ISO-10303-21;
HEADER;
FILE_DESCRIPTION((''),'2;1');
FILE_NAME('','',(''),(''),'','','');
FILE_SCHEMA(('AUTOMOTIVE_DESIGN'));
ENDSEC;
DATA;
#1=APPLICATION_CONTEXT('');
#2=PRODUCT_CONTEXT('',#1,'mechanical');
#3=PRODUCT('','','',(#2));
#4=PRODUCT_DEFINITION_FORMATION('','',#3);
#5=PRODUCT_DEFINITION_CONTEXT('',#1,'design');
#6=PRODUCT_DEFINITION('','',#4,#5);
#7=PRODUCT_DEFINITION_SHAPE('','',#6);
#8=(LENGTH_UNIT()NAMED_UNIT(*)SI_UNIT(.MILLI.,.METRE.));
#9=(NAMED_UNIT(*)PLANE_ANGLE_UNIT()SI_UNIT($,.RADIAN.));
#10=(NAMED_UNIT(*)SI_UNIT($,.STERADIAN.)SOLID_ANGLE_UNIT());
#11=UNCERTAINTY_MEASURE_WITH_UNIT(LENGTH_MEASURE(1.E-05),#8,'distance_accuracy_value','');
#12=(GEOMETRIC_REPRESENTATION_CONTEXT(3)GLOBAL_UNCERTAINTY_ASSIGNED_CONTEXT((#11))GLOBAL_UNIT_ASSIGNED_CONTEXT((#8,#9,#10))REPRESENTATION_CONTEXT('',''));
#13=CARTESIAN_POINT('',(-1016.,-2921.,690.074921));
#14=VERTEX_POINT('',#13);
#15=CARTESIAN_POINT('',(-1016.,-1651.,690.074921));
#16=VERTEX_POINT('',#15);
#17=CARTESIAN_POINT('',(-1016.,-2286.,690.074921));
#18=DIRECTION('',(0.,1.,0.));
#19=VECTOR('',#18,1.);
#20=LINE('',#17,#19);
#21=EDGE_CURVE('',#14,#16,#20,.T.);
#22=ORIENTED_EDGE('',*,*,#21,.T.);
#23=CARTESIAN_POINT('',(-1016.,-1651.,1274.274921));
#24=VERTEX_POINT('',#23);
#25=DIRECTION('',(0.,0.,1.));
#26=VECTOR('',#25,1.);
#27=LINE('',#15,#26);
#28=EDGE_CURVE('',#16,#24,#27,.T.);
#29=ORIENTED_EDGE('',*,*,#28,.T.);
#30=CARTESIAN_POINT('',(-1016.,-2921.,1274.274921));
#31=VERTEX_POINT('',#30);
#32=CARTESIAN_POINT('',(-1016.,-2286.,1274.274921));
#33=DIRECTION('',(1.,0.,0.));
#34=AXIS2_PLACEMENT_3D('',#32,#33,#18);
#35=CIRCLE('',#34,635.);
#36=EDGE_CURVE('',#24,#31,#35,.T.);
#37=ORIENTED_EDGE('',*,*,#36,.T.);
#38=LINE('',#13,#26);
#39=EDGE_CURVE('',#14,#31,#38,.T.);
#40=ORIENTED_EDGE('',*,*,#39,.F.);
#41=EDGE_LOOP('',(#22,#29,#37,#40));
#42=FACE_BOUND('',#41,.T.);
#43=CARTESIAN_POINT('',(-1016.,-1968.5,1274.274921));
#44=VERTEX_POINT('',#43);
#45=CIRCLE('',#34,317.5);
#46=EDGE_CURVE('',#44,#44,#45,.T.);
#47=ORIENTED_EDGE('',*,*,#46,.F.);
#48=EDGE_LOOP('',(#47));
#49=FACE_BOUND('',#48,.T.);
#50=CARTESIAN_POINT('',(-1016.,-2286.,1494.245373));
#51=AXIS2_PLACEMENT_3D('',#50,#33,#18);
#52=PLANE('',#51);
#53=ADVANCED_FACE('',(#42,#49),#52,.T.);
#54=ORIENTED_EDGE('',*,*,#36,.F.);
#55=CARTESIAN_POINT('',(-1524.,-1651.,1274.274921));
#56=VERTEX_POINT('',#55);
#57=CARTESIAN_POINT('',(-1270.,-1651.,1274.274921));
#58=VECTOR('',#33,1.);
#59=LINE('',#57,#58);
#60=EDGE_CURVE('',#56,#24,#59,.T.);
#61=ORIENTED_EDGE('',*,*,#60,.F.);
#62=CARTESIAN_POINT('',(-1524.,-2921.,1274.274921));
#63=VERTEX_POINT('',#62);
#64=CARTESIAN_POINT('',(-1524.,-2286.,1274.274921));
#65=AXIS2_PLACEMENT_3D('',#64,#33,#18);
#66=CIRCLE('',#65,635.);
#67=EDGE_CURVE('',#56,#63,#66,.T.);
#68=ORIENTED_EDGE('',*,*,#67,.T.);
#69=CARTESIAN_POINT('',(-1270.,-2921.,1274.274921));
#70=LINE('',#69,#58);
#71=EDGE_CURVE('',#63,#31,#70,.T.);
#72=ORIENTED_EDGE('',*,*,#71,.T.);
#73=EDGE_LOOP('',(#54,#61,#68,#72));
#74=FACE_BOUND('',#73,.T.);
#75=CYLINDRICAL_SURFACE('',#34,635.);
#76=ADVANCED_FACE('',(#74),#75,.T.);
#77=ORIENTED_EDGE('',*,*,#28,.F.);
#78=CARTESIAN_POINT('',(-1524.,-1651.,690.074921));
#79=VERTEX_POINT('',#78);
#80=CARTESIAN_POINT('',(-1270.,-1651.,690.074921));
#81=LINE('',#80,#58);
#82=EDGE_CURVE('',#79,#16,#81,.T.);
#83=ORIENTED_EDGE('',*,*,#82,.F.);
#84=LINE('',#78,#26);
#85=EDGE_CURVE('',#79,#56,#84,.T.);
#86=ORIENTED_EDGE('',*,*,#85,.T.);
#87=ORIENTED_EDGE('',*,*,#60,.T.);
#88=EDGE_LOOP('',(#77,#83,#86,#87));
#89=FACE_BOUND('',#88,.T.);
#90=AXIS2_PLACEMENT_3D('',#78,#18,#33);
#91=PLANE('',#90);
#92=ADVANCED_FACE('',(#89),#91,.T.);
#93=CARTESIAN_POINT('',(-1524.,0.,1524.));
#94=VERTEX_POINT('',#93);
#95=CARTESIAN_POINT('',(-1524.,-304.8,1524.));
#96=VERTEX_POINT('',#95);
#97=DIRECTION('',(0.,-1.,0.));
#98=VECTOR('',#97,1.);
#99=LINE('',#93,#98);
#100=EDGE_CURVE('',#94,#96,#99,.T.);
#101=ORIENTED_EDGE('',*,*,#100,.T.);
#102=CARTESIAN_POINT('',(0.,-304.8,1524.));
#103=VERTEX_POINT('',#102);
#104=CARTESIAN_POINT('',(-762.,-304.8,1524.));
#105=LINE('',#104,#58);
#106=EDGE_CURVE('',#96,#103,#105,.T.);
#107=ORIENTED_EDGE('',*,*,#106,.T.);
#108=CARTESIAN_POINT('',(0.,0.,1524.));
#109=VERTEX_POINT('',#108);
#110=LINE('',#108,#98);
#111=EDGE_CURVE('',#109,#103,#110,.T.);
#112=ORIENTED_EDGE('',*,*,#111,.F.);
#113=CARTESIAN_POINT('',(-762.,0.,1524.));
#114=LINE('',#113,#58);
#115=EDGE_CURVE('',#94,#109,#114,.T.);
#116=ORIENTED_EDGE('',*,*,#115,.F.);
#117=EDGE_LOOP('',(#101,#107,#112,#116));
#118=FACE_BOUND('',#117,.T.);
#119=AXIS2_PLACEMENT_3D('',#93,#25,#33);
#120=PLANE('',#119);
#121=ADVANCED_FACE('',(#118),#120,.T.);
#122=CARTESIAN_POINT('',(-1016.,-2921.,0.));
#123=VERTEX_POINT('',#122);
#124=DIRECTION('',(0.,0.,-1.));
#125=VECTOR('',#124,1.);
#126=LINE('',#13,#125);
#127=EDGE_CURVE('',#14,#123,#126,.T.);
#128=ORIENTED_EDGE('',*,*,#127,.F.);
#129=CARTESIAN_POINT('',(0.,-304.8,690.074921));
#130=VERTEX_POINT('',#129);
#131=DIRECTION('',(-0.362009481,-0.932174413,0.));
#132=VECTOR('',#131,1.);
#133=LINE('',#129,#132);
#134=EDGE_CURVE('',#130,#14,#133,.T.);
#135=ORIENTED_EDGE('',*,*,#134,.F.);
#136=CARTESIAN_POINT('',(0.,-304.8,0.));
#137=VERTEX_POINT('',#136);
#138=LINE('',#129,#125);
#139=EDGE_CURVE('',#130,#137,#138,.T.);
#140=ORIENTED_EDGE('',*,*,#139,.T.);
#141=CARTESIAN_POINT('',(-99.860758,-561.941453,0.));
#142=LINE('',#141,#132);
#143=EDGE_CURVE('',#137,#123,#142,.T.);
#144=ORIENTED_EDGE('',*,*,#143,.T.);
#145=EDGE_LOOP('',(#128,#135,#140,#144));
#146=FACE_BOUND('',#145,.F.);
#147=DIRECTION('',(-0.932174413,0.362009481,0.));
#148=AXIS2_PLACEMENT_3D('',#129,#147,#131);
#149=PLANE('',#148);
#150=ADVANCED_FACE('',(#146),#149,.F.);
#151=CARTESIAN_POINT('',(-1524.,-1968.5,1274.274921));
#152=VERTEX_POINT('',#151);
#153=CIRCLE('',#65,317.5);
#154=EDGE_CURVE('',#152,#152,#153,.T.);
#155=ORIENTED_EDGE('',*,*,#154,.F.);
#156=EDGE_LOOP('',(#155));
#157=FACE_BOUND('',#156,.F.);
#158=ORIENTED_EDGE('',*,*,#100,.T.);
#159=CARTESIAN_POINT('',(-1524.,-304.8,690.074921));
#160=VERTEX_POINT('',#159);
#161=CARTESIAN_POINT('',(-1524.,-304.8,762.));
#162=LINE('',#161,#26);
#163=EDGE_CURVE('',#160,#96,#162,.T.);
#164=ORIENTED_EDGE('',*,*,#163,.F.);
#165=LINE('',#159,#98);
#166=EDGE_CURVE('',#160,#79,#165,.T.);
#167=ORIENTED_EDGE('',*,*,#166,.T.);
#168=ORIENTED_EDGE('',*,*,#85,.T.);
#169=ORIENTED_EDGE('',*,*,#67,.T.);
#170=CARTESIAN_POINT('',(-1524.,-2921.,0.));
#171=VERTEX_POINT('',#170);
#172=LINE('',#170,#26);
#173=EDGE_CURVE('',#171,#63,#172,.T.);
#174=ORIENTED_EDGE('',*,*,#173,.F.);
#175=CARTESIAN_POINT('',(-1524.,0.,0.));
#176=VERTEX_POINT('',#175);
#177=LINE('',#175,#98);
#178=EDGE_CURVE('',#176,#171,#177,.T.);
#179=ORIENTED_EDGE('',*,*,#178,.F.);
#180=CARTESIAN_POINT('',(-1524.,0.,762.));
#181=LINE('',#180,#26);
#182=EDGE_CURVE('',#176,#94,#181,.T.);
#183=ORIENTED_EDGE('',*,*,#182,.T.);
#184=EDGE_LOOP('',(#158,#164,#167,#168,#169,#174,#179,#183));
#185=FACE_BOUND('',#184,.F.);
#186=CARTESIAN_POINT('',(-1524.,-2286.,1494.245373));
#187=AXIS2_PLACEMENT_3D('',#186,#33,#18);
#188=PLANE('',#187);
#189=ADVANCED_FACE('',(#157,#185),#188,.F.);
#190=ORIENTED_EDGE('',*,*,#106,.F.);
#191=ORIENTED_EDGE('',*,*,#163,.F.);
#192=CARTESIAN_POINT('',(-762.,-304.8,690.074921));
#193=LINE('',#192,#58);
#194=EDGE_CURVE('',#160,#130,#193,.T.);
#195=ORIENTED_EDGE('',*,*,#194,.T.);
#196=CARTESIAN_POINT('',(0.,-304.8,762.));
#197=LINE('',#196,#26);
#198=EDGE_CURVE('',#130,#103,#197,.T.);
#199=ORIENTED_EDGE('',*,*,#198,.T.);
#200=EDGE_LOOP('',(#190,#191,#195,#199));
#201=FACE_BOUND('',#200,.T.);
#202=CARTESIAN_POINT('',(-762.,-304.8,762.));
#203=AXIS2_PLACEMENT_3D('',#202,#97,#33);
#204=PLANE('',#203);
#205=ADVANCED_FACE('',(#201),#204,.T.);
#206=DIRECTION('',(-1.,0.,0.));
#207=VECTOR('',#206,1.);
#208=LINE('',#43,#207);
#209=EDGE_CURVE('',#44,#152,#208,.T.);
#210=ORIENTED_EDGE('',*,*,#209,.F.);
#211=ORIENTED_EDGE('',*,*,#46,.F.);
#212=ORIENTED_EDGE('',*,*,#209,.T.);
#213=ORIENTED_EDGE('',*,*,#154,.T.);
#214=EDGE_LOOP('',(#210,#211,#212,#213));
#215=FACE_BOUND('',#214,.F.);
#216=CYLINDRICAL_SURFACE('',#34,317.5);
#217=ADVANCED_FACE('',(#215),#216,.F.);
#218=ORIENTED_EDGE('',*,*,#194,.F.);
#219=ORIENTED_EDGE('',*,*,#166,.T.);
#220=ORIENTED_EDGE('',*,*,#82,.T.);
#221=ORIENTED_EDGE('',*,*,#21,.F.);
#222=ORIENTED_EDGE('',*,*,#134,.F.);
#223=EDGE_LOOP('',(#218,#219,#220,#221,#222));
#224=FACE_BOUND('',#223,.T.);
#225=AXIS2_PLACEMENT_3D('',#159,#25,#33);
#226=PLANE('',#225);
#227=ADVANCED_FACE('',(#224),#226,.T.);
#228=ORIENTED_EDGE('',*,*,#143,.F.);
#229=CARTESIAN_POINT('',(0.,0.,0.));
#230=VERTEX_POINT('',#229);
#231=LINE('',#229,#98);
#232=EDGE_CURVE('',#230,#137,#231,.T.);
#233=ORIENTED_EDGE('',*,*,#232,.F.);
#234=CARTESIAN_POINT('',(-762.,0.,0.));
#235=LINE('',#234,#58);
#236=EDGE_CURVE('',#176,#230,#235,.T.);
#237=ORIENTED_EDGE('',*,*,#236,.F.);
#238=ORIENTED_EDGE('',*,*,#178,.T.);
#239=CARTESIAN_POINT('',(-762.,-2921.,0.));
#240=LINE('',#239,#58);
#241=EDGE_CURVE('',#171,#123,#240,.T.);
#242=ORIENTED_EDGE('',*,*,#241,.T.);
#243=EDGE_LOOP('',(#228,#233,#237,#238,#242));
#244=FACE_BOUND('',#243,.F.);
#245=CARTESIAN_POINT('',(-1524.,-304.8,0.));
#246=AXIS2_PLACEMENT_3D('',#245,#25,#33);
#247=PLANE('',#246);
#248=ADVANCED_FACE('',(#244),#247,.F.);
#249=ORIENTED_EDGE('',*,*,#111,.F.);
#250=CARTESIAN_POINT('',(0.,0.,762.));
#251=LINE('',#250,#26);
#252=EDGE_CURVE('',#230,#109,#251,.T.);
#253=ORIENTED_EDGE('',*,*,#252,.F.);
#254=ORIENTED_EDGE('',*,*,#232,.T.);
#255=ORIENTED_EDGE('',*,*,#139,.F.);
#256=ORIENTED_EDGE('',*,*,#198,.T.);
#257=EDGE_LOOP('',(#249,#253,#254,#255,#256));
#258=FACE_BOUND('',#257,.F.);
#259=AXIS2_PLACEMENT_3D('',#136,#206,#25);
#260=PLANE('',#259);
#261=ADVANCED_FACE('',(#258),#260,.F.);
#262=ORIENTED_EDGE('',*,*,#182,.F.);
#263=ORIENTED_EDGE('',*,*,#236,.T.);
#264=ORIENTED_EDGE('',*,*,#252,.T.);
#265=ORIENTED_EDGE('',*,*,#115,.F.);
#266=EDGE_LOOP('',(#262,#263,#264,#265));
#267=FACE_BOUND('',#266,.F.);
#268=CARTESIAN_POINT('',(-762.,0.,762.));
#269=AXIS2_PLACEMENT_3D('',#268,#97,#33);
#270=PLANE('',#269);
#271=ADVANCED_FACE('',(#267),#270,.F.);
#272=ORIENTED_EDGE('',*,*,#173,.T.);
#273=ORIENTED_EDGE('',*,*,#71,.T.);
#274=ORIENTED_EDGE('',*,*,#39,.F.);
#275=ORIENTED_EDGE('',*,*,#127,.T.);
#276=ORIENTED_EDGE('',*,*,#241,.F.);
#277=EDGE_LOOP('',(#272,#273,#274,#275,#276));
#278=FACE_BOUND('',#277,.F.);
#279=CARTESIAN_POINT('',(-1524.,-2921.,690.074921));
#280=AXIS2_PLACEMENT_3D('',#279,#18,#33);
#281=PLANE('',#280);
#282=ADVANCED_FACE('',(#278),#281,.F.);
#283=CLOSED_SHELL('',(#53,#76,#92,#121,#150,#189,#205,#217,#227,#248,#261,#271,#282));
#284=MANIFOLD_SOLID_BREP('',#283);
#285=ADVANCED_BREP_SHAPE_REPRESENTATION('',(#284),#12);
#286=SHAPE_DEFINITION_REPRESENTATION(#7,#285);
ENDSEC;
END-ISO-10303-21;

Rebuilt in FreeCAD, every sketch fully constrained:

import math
import FreeCAD as App
import Part
import Sketcher
Q = App.Units.Quantity

doc = App.newDocument("Part")
body = doc.addObject("PartDesign::Body", "Body")

sketch1 = doc.addObject("Sketcher::SketchObject", "Sketch")
body.addObject(sketch1)
sketch1.AttachmentSupport = (doc.XZ_Plane, [""])
sketch1.MapMode = "FlatFace"
sketch1.addGeometry([
    Part.LineSegment(App.Vector(-1524, 1524, 0), App.Vector(-1524, 0, 0)),
    Part.LineSegment(App.Vector(-1524, 0, 0), App.Vector(0, 0, 0)),
    Part.LineSegment(App.Vector(0, 0, 0), App.Vector(0, 1524, 0)),
    Part.LineSegment(App.Vector(0, 1524, 0), App.Vector(-1524, 1524, 0)),
], False)
sketch1.addConstraint([
    Sketcher.Constraint("Coincident", 0, 2, 1, 1),
    Sketcher.Constraint("Coincident", 1, 2, 2, 1),
    Sketcher.Constraint("Coincident", 2, 2, 3, 1),
    Sketcher.Constraint("Coincident", 3, 2, 0, 1),
    Sketcher.Constraint("Vertical", 0),
    Sketcher.Constraint("Horizontal", 1),
    Sketcher.Constraint("Vertical", 2),
    Sketcher.Constraint("Horizontal", 3),
    Sketcher.Constraint("Coincident", 1, 2, -1, 1),
    Sketcher.Constraint("Equal", 3, 0),
    Sketcher.Constraint("DistanceX", 1, 1, 1, 2, Q("60 in")),
])
pad1 = doc.addObject("PartDesign::Pad", "Pad")
body.addObject(pad1)
pad1.Profile = sketch1
pad1.Length = Q("12 in")

sketch2 = doc.addObject("Sketcher::SketchObject", "Sketch001")
body.addObject(sketch2)
sketch2.AttachmentSupport = (doc.XZ_Plane, [""])
sketch2.MapMode = "FlatFace"
sketch2.AttachmentOffset = App.Placement(App.Vector(0, 0, 12 * 25.4), App.Rotation())
sketch2.addGeometry([
    Part.LineSegment(App.Vector(-1524, 690, 0), App.Vector(-1524, 0, 0)),
    Part.LineSegment(App.Vector(-1524, 0, 0), App.Vector(0, 0, 0)),
    Part.LineSegment(App.Vector(0, 0, 0), App.Vector(0, 690, 0)),
    Part.LineSegment(App.Vector(0, 690, 0), App.Vector(-1524, 690, 0)),
], False)
sketch2.addConstraint([
    Sketcher.Constraint("Coincident", 0, 2, 1, 1),
    Sketcher.Constraint("Coincident", 1, 2, 2, 1),
    Sketcher.Constraint("Coincident", 2, 2, 3, 1),
    Sketcher.Constraint("Coincident", 3, 2, 0, 1),
    Sketcher.Constraint("Vertical", 0),
    Sketcher.Constraint("Horizontal", 1),
    Sketcher.Constraint("Vertical", 2),
    Sketcher.Constraint("Horizontal", 3),
    Sketcher.Constraint("Coincident", 1, 2, -1, 1),
    Sketcher.Constraint("DistanceX", 1, 1, 1, 2, Q("60 in")),
    Sketcher.Constraint("DistanceY", 0, 2, 0, 1, 690.074921),
])
pad2 = doc.addObject("PartDesign::Pad", "Pad001")
body.addObject(pad2)
pad2.Profile = sketch2
pad2.Length = Q("103 in")

sketch3 = doc.addObject("Sketcher::SketchObject", "Sketch002")
body.addObject(sketch3)
sketch3.AttachmentSupport = (doc.XY_Plane, [""])
sketch3.MapMode = "FlatFace"
sketch3.AttachmentOffset = App.Placement(App.Vector(0, 0, 690.074921), App.Rotation())
sketch3.addGeometry([
    Part.LineSegment(App.Vector(-1524, -1651, 0), App.Vector(-1524, -2921, 0)),
    Part.LineSegment(App.Vector(-1524, -2921, 0), App.Vector(-1016, -2921, 0)),
    Part.LineSegment(App.Vector(-1016, -2921, 0), App.Vector(-1016, -1651, 0)),
    Part.LineSegment(App.Vector(-1016, -1651, 0), App.Vector(-1524, -1651, 0)),
], False)
sketch3.addConstraint([
    Sketcher.Constraint("Coincident", 0, 2, 1, 1),
    Sketcher.Constraint("Coincident", 1, 2, 2, 1),
    Sketcher.Constraint("Coincident", 2, 2, 3, 1),
    Sketcher.Constraint("Coincident", 3, 2, 0, 1),
    Sketcher.Constraint("Vertical", 0),
    Sketcher.Constraint("Horizontal", 1),
    Sketcher.Constraint("Vertical", 2),
    Sketcher.Constraint("Horizontal", 3),
    Sketcher.Constraint("DistanceX", 1, 1, 1, 2, Q("20 in")),
    Sketcher.Constraint("DistanceY", 0, 2, 0, 1, Q("50 in")),
    Sketcher.Constraint("DistanceX", 0, 2, -1, 1, Q("60 in")),
    Sketcher.Constraint("DistanceY", 0, 2, -1, 1, Q("115 in")),
])
pad3 = doc.addObject("PartDesign::Pad", "Pad002")
body.addObject(pad3)
pad3.Profile = sketch3
pad3.Length = Q("23 in")

sketch4 = doc.addObject("Sketcher::SketchObject", "Sketch003")
body.addObject(sketch4)
sketch4.AttachmentSupport = (doc.YZ_Plane, [""])
sketch4.MapMode = "FlatFace"
sketch4.AttachmentOffset = App.Placement(App.Vector(0, 0, -40 * 25.4), App.Rotation())
sketch4.addGeometry([
    Part.LineSegment(App.Vector(-2921, 1274, 0), App.Vector(-1651, 1274, 0)),
    Part.ArcOfCircle(Part.Circle(App.Vector(-2286, 1274, 0), App.Vector(0, 0, 1), 635), math.radians(0), math.radians(180)),
], False)
sketch4.addConstraint([
    Sketcher.Constraint("Coincident", 0, 1, 1, 2),
    Sketcher.Constraint("Coincident", 1, 1, 0, 2),
    Sketcher.Constraint("Horizontal", 0),
    Sketcher.Constraint("Horizontal", 1, 3, 0, 1),
    Sketcher.Constraint("Radius", 1, Q("25 in")),
    Sketcher.Constraint("DistanceX", 1, 3, -1, 1, Q("90 in")),
    Sketcher.Constraint("DistanceY", -1, 1, 1, 3, 1274.274921),
])
pad4 = doc.addObject("PartDesign::Pad", "Pad003")
body.addObject(pad4)
pad4.Profile = sketch4
pad4.Length = Q("20 in")
pad4.Reversed = True

sketch5 = doc.addObject("Sketcher::SketchObject", "Sketch004")
body.addObject(sketch5)
sketch5.AttachmentSupport = (doc.YZ_Plane, [""])
sketch5.MapMode = "FlatFace"
sketch5.AttachmentOffset = App.Placement(App.Vector(0, 0, -40 * 25.4), App.Rotation())
sketch5.addGeometry(Part.Circle(App.Vector(-2286, 1274, 0), App.Vector(0, 0, 1), 318), False)
sketch5.addConstraint([
    Sketcher.Constraint("Diameter", 0, Q("25 in")),
    Sketcher.Constraint("DistanceX", 0, 3, -1, 1, Q("90 in")),
    Sketcher.Constraint("DistanceY", -1, 1, 0, 3, 1274.274921),
])
pocket1 = doc.addObject("PartDesign::Pocket", "Pocket")
body.addObject(pocket1)
pocket1.Profile = sketch5
pocket1.Length = Q("32 in")

sketch6 = doc.addObject("Sketcher::SketchObject", "Sketch005")
body.addObject(sketch6)
sketch6.AttachmentSupport = (doc.XY_Plane, [""])
sketch6.MapMode = "FlatFace"
sketch6.AttachmentOffset = App.Placement(App.Vector(0, 0, 690.074921), App.Rotation())
sketch6.addGeometry([
    Part.LineSegment(App.Vector(0, -305, 0), App.Vector(-1016, -2921, 0)),
    Part.LineSegment(App.Vector(-1016, -2921, 0), App.Vector(0, -2921, 0)),
    Part.LineSegment(App.Vector(0, -2921, 0), App.Vector(0, -305, 0)),
], False)
sketch6.addConstraint([
    Sketcher.Constraint("Coincident", 0, 2, 1, 1),
    Sketcher.Constraint("Coincident", 1, 2, 2, 1),
    Sketcher.Constraint("Coincident", 2, 2, 0, 1),
    Sketcher.Constraint("Horizontal", 1),
    Sketcher.Constraint("Vertical", 2),
    Sketcher.Constraint("PointOnObject", 1, 2, -2),
    Sketcher.Constraint("DistanceX", 1, 1, 1, 2, Q("40 in")),
    Sketcher.Constraint("DistanceY", 2, 1, 2, 2, Q("103 in")),
    Sketcher.Constraint("DistanceY", 0, 2, -1, 1, Q("115 in")),
])
pocket2 = doc.addObject("PartDesign::Pocket", "Pocket001")
body.addObject(pocket2)
pocket2.Profile = sketch6
pocket2.Length = Q("73.4 in")

doc.recompute()
